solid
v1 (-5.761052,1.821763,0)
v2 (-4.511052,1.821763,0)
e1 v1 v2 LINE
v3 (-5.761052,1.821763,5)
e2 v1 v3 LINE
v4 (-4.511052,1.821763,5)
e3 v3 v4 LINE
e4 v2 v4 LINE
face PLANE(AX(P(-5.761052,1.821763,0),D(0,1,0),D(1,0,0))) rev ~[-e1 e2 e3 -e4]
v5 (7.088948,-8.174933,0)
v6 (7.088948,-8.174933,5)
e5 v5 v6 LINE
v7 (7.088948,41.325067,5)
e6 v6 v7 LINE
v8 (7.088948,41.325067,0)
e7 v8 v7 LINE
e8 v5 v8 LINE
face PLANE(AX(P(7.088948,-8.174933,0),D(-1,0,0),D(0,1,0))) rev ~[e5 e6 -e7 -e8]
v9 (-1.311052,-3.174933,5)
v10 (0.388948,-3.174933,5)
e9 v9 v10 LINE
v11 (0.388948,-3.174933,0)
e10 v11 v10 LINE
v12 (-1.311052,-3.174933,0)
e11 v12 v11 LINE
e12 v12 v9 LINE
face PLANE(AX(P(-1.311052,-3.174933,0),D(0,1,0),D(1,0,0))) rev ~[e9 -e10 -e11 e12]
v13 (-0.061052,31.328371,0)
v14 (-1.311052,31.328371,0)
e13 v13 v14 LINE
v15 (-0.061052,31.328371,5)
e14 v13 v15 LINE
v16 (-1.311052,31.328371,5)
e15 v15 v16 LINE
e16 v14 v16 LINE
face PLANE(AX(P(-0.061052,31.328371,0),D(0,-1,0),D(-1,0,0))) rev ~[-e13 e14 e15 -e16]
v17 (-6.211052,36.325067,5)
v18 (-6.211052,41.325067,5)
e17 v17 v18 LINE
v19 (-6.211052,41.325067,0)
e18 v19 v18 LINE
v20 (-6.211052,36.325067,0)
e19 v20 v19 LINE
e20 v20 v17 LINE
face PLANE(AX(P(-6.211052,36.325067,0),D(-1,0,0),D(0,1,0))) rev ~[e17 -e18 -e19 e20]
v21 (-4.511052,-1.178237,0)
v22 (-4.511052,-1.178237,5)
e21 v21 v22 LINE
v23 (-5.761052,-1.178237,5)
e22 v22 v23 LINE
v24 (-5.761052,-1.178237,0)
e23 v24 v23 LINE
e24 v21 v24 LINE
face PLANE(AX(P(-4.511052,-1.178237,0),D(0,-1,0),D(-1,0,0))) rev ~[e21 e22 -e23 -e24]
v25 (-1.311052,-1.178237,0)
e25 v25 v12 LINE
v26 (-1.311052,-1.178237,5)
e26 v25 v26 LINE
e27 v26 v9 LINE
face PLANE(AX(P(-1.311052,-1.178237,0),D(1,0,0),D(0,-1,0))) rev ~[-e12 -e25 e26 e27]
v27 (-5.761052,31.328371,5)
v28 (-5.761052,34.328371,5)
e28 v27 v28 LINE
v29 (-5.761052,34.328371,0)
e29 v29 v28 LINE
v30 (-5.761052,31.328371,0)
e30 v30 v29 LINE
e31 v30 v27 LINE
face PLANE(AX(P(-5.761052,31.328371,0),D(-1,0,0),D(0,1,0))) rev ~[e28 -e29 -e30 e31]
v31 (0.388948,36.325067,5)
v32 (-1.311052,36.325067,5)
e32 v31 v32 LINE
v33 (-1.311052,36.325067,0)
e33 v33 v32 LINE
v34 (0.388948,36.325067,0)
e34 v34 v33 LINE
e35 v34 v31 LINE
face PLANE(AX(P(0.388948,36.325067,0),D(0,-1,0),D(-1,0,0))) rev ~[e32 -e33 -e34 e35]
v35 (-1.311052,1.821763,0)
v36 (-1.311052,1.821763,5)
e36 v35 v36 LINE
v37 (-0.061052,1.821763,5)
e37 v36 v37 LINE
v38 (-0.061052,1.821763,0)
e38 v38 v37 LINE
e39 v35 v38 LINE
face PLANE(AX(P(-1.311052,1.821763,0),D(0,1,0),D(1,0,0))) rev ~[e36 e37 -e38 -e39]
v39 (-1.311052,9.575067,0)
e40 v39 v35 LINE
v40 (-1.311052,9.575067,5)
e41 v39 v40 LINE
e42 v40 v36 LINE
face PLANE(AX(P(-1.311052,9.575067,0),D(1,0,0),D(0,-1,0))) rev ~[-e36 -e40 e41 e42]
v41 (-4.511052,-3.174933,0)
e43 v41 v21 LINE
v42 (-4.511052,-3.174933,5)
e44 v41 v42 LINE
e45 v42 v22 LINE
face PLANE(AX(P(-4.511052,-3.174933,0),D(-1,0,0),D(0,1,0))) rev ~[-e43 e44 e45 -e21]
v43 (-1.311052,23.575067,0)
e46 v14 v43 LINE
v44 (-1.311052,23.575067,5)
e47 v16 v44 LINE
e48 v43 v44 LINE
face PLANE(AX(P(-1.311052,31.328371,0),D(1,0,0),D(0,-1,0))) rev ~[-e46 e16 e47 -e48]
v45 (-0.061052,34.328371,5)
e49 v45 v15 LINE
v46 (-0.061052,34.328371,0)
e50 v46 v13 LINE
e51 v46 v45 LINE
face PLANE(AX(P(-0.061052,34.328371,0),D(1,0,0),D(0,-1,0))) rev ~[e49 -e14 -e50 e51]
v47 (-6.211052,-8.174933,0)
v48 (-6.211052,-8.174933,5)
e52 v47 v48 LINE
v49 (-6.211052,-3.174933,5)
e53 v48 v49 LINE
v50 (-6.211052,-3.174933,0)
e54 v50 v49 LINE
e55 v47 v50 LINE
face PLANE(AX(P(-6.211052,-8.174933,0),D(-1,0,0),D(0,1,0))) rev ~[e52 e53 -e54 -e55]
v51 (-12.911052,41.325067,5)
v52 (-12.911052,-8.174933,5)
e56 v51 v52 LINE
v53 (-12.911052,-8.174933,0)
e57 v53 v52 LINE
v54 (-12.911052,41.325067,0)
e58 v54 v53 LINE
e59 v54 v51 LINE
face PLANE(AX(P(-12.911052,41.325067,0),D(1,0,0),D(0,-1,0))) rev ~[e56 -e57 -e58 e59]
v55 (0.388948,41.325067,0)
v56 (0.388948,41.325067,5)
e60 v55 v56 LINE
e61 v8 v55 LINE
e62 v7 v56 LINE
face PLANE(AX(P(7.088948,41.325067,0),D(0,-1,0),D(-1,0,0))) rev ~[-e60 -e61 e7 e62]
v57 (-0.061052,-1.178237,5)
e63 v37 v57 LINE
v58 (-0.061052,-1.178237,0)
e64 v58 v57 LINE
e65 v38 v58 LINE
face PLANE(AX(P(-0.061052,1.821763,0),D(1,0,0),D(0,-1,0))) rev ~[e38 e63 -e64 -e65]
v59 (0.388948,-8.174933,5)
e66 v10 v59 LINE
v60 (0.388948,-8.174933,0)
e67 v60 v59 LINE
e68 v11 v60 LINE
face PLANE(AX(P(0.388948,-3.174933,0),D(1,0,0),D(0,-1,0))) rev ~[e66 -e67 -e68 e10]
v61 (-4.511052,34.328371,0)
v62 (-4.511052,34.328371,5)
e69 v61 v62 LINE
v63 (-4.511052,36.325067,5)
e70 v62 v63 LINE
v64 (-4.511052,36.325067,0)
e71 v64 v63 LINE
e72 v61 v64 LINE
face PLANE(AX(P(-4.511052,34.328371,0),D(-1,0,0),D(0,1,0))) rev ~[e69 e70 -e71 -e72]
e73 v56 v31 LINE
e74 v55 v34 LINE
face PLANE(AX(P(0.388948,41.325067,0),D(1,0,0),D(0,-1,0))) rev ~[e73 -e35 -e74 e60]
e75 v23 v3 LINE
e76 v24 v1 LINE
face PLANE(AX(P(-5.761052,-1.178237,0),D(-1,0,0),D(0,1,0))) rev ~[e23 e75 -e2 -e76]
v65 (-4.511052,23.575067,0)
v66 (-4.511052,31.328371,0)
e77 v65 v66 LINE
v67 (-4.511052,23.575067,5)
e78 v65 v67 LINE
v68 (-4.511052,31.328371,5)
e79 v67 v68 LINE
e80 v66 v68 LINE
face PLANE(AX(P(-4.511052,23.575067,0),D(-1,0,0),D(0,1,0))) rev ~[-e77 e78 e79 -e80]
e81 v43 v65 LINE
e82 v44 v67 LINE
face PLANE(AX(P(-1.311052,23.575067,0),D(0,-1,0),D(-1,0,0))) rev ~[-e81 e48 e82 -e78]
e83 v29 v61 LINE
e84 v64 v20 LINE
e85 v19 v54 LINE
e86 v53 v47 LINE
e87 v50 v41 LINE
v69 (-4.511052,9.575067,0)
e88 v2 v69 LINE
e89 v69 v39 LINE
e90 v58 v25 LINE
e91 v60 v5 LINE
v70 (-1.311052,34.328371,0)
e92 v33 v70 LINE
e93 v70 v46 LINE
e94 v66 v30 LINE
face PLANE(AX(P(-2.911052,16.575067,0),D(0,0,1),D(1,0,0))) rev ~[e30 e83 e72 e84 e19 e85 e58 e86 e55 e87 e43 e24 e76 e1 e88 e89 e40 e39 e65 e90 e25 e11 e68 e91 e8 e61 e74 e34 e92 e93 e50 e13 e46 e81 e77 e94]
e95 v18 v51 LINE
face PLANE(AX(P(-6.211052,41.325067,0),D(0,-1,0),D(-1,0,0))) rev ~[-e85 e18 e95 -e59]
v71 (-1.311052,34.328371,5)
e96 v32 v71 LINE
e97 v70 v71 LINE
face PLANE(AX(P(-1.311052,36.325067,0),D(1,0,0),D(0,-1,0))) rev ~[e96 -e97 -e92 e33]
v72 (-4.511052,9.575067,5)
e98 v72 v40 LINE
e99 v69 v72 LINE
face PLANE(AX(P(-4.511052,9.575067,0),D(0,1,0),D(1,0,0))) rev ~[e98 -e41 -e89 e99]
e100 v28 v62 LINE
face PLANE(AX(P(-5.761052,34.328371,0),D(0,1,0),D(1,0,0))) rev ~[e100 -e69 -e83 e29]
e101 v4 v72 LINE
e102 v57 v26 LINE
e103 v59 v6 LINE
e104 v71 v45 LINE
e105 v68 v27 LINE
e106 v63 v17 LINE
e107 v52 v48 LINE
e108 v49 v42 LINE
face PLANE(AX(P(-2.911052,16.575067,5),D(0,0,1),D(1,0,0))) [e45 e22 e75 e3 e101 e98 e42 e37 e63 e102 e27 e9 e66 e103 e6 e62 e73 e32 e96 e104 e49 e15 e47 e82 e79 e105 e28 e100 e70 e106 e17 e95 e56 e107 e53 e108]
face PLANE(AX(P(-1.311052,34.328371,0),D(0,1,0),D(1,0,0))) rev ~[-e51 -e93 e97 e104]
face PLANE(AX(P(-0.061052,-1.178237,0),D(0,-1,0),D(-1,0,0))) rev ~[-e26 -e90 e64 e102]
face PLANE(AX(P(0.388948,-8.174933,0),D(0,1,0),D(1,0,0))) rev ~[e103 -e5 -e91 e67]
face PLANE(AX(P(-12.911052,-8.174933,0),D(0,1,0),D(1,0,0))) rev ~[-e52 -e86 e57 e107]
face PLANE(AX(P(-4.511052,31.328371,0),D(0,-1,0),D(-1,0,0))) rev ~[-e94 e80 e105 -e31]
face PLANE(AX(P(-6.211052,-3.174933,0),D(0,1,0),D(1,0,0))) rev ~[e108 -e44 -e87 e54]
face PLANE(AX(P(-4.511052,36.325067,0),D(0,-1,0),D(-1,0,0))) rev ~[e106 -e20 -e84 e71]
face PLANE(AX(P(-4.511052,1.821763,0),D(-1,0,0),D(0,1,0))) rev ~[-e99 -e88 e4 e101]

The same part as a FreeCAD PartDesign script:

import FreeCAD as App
import Part
import Sketcher
from FreeCAD import Vector


def add_polygon(sketch, points):
    """Adds a closed chain of lines whose ends are joined by coincident constraints."""
    first, n = sketch.GeometryCount, len(points)
    for a, b in zip(points, points[1:] + points[:1]):
        sketch.addGeometry(Part.LineSegment(App.Vector(*a, 0), App.Vector(*b, 0)), False)
    for i in range(n):
        sketch.addConstraint(Sketcher.Constraint("Coincident", first + i, 2, first + (i + 1) % n, 1))

doc = App.newDocument("Part")
body = doc.addObject("PartDesign::Body", "Body")

sketch1 = body.newObject("Sketcher::SketchObject", "Sketch")
sketch1.AttachmentSupport = (doc.getObject("XY_Plane"), [""])
sketch1.MapMode = "FlatFace"
add_polygon(sketch1, [(-12.9, 41.3), (-12.9, -8.2), (-6.2, -8.2), (-6.2, -3.2), (-4.5, -3.2), (-4.5, -1.2), (-5.8, -1.2), (-5.8, 1.8), (-4.5, 1.8), (-4.5, 9.6), (-1.3, 9.6), (-1.3, 1.8), (-0.1, 1.8), (-0.1, -1.2), (-1.3, -1.2), (-1.3, -3.2), (0.4, -3.2), (0.4, -8.2), (7.1, -8.2), (7.1, 41.3), (0.4, 41.3), (0.4, 36.3), (-1.3, 36.3), (-1.3, 34.3), (-0.1, 34.3), (-0.1, 31.3), (-1.3, 31.3), (-1.3, 23.6), (-4.5, 23.6), (-4.5, 31.3), (-5.8, 31.3), (-5.8, 34.3), (-4.5, 34.3), (-4.5, 36.3), (-6.2, 36.3), (-6.2, 41.3)])
sketch1.addConstraint(Sketcher.Constraint("Vertical", 0))
sketch1.addConstraint(Sketcher.Constraint("Horizontal", 1))
sketch1.addConstraint(Sketcher.Constraint("Vertical", 2))
sketch1.addConstraint(Sketcher.Constraint("Horizontal", 3))
sketch1.addConstraint(Sketcher.Constraint("Vertical", 4))
sketch1.addConstraint(Sketcher.Constraint("Horizontal", 5))
sketch1.addConstraint(Sketcher.Constraint("Vertical", 6))
sketch1.addConstraint(Sketcher.Constraint("Horizontal", 7))
sketch1.addConstraint(Sketcher.Constraint("Vertical", 8))
sketch1.addConstraint(Sketcher.Constraint("Horizontal", 9))
sketch1.addConstraint(Sketcher.Constraint("Vertical", 10))
sketch1.addConstraint(Sketcher.Constraint("Horizontal", 11))
sketch1.addConstraint(Sketcher.Constraint("Vertical", 12))
sketch1.addConstraint(Sketcher.Constraint("Horizontal", 13))
sketch1.addConstraint(Sketcher.Constraint("Vertical", 14))
sketch1.addConstraint(Sketcher.Constraint("Horizontal", 15))
sketch1.addConstraint(Sketcher.Constraint("Vertical", 16))
sketch1.addConstraint(Sketcher.Constraint("Horizontal", 17))
sketch1.addConstraint(Sketcher.Constraint("Vertical", 18))
sketch1.addConstraint(Sketcher.Constraint("Horizontal", 19))
sketch1.addConstraint(Sketcher.Constraint("Vertical", 20))
sketch1.addConstraint(Sketcher.Constraint("Horizontal", 21))
sketch1.addConstraint(Sketcher.Constraint("Vertical", 22))
sketch1.addConstraint(Sketcher.Constraint("Horizontal", 23))
sketch1.addConstraint(Sketcher.Constraint("Vertical", 24))
sketch1.addConstraint(Sketcher.Constraint("Horizontal", 25))
sketch1.addConstraint(Sketcher.Constraint("Vertical", 26))
sketch1.addConstraint(Sketcher.Constraint("Horizontal", 27))
sketch1.addConstraint(Sketcher.Constraint("Vertical", 28))
sketch1.addConstraint(Sketcher.Constraint("Horizontal", 29))
sketch1.addConstraint(Sketcher.Constraint("Vertical", 30))
sketch1.addConstraint(Sketcher.Constraint("Horizontal", 31))
sketch1.addConstraint(Sketcher.Constraint("Vertical", 32))
sketch1.addConstraint(Sketcher.Constraint("Horizontal", 33))
sketch1.addConstraint(Sketcher.Constraint("Vertical", 34))
sketch1.addConstraint(Sketcher.Constraint("Horizontal", 35))
sketch1.addConstraint(Sketcher.Constraint("Horizontal", 7, 2, 10, 2))
sketch1.addConstraint(Sketcher.Constraint("Horizontal", 5, 2, 12, 2))
sketch1.addConstraint(Sketcher.Constraint("Horizontal", 3, 2, 14, 2))
sketch1.addConstraint(Sketcher.Constraint("Horizontal", 1, 2, 16, 2))
sketch1.addConstraint(Sketcher.Constraint("Horizontal", 25, 2, 28, 2))
sketch1.addConstraint(Sketcher.Constraint("Horizontal", 23, 2, 30, 2))
sketch1.addConstraint(Sketcher.Constraint("Horizontal", 21, 2, 32, 2))
sketch1.addConstraint(Sketcher.Constraint("Horizontal", 19, 2, 34, 2))
sketch1.addConstraint(Sketcher.Constraint("Vertical", 4, 2, 7, 2))
sketch1.addConstraint(Sketcher.Constraint("Vertical", 10, 2, 13, 2))
sketch1.addConstraint(Sketcher.Constraint("Vertical", 16, 2, 19, 2))
sketch1.addConstraint(Sketcher.Constraint("Vertical", 14, 2, 21, 2))
sketch1.addConstraint(Sketcher.Constraint("Vertical", 12, 2, 23, 2))
sketch1.addConstraint(Sketcher.Constraint("Vertical", 22, 2, 25, 2))
sketch1.addConstraint(Sketcher.Constraint("Vertical", 8, 2, 27, 2))
sketch1.addConstraint(Sketcher.Constraint("Vertical", 6, 2, 29, 2))
sketch1.addConstraint(Sketcher.Constraint("Vertical", 28, 2, 31, 2))
sketch1.addConstraint(Sketcher.Constraint("Vertical", 2, 2, 33, 2))
sketch1.addConstraint(Sketcher.Constraint("Equal", 7, 11))
sketch1.addConstraint(Sketcher.Constraint("Equal", 3, 15))
sketch1.addConstraint(Sketcher.Constraint("Equal", 1, 17))
sketch1.addConstraint(Sketcher.Constraint("Equal", 16, 20))
sketch1.addConstraint(Sketcher.Constraint("Equal", 14, 22))
sketch1.addConstraint(Sketcher.Constraint("Equal", 12, 24))
sketch1.addConstraint(Sketcher.Constraint("Equal", 10, 26))
sketch1.addConstraint(Sketcher.Constraint("DistanceY", 2, 1, 2, 2, 5.0))
sketch1.addConstraint(Sketcher.Constraint("DistanceY", 6, 1, 6, 2, 3.0))
sketch1.addConstraint(Sketcher.Constraint("DistanceX", 1, 1, 1, 2, 6.7))
sketch1.addConstraint(Sketcher.Constraint("DistanceX", 3, 1, 3, 2, 1.7))
sketch1.addConstraint(Sketcher.Constraint("DistanceX", 9, 1, 9, 2, 3.2))
sketch1.addConstraint(Sketcher.Constraint("DistanceY", 0, 2, 0, 1, 49.5))
sketch1.addConstraint(Sketcher.Constraint("DistanceX", 5, 2, 5, 1, 1.25))
sketch1.addConstraint(Sketcher.Constraint("DistanceY", 3, 2, 8, 2, 12.75))
sketch1.addConstraint(Sketcher.Constraint("DistanceY", 4, 1, 4, 2, 1.996696))
sketch1.addConstraint(Sketcher.Constraint("DistanceX", 0, 2, -1, 1, 12.911052))
sketch1.addConstraint(Sketcher.Constraint("DistanceY", -1, 1, 22, 2, 34.328371))
pad1 = body.newObject("PartDesign::Pad", "Pad")
pad1.Profile = sketch1
pad1.Length = 5

doc.recompute()
